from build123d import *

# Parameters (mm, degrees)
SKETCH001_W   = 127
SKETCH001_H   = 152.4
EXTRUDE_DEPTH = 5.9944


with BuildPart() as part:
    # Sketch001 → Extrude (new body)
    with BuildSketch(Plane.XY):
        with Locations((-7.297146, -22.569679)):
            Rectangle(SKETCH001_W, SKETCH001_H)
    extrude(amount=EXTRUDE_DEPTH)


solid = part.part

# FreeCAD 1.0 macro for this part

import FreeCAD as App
import Part
import Sketcher

V = App.Vector
Q = App.Units.Quantity


def add_polygon(sketch, points):
    """Adds a closed chain of lines whose ends are joined by coincident constraints."""
    first, n = sketch.GeometryCount, len(points)
    for a, b in zip(points, points[1:] + points[:1]):
        sketch.addGeometry(Part.LineSegment(App.Vector(*a, 0), App.Vector(*b, 0)), False)
    for i in range(n):
        sketch.addConstraint(Sketcher.Constraint("Coincident", first + i, 2, first + (i + 1) % n, 1))

doc = App.newDocument("Part")
params = doc.addObject("Spreadsheet::Sheet", "Params")
for row, (alias, value) in enumerate([
    ("sketch1_width", "5 in"),
    ("sketch1_height", "6 in"),
    ("pad1_length", "0.236 in"),
], start=1):
    params.set(f"A{row}", alias)
    params.set(f"B{row}", "=" + value)
    params.setAlias(f"B{row}", alias)

body = doc.addObject("PartDesign::Body", "Body")

# Sketch on XY plane
sketch1 = body.newObject("Sketcher::SketchObject", "Sketch")
sketch1.AttachmentSupport = (doc.getObject("XY_Plane"), [""])
sketch1.MapMode = "FlatFace"
add_polygon(sketch1, [(-71, 54), (-71, -99), (56, -99), (56, 54)])  # lines 0-3
sketch1.addConstraint(Sketcher.Constraint("Vertical", 0))
sketch1.addConstraint(Sketcher.Constraint("Horizontal", 1))
sketch1.addConstraint(Sketcher.Constraint("Vertical", 2))
sketch1.addConstraint(Sketcher.Constraint("Horizontal", 3))
sketch1.addConstraint(Sketcher.Constraint("DistanceX", 1, 1, 1, 2, Q("5 in")))
sketch1.addConstraint(Sketcher.Constraint("DistanceY", 0, 2, 0, 1, Q("6 in")))
sketch1.addConstraint(Sketcher.Constraint("DistanceY", 0, 2, -1, 1, Q("98.769679 mm")))
sketch1.addConstraint(Sketcher.Constraint("DistanceX", 0, 2, -1, 1, Q("70.797146 mm")))
sketch1.setExpression("Constraints[8]", "Params.sketch1_width")
sketch1.setExpression("Constraints[9]", "Params.sketch1_height")
pad1 = body.newObject("PartDesign::Pad", "Pad")
pad1.Profile = sketch1
pad1.setExpression("Length", "Params.pad1_length")

doc.recompute()
